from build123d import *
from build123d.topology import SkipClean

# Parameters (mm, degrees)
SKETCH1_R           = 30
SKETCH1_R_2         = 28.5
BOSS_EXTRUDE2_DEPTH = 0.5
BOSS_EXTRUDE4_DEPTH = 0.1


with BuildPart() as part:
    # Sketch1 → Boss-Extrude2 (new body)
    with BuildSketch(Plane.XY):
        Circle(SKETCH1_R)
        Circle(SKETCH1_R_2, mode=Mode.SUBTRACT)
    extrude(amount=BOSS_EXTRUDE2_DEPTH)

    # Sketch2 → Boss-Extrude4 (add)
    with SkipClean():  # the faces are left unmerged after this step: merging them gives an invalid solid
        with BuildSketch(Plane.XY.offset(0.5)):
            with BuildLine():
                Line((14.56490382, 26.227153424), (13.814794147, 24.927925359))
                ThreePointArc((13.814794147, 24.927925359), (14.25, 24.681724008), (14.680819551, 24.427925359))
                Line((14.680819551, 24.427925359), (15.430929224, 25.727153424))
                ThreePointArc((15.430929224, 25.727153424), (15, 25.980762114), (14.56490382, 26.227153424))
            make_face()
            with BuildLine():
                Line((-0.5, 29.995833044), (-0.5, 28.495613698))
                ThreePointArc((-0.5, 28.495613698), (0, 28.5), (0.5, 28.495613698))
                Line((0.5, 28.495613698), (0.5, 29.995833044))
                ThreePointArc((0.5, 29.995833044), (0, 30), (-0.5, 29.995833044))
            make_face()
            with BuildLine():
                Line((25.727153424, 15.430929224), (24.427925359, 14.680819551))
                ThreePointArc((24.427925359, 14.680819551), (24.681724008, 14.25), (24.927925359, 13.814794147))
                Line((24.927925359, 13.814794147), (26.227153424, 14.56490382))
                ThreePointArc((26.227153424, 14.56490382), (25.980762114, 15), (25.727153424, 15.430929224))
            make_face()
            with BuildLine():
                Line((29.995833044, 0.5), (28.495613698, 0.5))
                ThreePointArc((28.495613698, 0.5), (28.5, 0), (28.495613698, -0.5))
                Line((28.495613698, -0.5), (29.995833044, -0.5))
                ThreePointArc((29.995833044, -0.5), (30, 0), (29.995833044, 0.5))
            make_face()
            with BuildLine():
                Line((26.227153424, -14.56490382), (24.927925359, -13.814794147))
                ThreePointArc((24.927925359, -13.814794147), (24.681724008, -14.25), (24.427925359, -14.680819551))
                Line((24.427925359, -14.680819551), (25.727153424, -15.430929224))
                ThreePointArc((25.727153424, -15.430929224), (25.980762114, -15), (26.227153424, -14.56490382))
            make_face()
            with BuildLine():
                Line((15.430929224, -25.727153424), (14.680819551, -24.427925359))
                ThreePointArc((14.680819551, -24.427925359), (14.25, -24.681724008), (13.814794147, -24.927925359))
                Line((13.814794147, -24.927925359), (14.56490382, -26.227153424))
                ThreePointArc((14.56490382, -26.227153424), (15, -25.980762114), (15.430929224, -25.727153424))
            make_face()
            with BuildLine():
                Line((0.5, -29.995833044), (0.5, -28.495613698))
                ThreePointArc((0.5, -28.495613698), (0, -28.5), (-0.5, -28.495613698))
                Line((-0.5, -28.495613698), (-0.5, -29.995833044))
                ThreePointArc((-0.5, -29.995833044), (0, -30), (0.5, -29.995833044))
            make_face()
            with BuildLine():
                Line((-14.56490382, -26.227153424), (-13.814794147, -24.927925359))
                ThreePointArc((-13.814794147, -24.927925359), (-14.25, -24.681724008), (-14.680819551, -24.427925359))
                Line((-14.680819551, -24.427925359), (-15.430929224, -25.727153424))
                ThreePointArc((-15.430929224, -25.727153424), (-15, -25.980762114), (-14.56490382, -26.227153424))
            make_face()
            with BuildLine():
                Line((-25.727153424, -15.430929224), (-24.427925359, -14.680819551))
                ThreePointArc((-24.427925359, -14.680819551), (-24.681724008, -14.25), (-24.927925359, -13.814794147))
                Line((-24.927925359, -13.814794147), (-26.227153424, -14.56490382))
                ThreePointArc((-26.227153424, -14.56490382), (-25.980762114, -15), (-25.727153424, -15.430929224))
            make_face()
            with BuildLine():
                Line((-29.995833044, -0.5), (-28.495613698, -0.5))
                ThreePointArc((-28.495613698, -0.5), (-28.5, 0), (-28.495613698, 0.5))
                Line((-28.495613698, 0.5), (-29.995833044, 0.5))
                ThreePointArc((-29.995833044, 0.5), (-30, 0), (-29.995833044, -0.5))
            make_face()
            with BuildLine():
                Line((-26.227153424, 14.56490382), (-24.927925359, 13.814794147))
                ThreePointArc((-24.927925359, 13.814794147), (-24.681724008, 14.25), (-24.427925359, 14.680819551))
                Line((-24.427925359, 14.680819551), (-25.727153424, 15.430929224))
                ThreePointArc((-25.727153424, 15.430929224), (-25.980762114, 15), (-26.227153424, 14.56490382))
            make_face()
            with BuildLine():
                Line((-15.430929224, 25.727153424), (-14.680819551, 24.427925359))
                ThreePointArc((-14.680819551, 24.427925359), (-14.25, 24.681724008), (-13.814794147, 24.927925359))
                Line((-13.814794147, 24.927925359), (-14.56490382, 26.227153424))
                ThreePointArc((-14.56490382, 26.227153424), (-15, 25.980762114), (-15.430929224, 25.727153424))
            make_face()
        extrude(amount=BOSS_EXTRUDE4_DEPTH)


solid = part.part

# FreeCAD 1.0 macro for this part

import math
import FreeCAD as App
import Part
import Sketcher

V = App.Vector
Q = App.Units.Quantity

doc = App.newDocument("Part")
body = doc.addObject("PartDesign::Body", "Body")

# Sketch on XY plane
sketch1 = doc.addObject("Sketcher::SketchObject", "Sketch")
body.addObject(sketch1)
sketch1.AttachmentSupport = (doc.XY_Plane, [""])
sketch1.MapMode = "FlatFace"
sketch1.addGeometry(Part.Circle(V(0, 0, 0), V(0, 0, 1), 30), False)
sketch1.addGeometry(Part.Circle(V(0, 0, 0), V(0, 0, 1), 28), False)
sketch1.addConstraint(Sketcher.Constraint("Coincident", 0, 3, -1, 1))
sketch1.addConstraint(Sketcher.Constraint("Coincident", 1, 3, -1, 1))
sketch1.addConstraint(Sketcher.Constraint("Diameter", 0, 60.0))
sketch1.addConstraint(Sketcher.Constraint("Diameter", 1, 57.0))
pad1 = doc.addObject("PartDesign::Pad", "Pad")
body.addObject(pad1)
pad1.Profile = sketch1
pad1.Length = 0.5

# Sketch on XY plane
sketch2 = doc.addObject("Sketcher::SketchObject", "Sketch001")
body.addObject(sketch2)
sketch2.AttachmentSupport = (doc.XY_Plane, [""])
sketch2.MapMode = "FlatFace"
sketch2.AttachmentOffset = App.Placement(V(0, 0, 0.5), App.Rotation())
sketch2.addGeometry(Part.LineSegment(V(14.6, 26.2, 0), V(13.8, 24.9, 0)), False)
sketch2.addGeometry(Part.ArcOfCircle(Part.Circle(V(0, 0, 0), V(0, 0, 1), 28.5), math.radians(58.99), math.radians(61.01)), False)
sketch2.addGeometry(Part.LineSegment(V(14.7, 24.4, 0), V(15.4, 25.7, 0)), False)
sketch2.addGeometry(Part.ArcOfCircle(Part.Circle(V(0, 0, 0), V(0, 0, 1), 30), math.radians(59.05), math.radians(60.95)), False)
sketch2.addGeometry(Part.LineSegment(V(-0.5, 30, 0), V(-0.5, 28.5, 0)), False)
sketch2.addGeometry(Part.ArcOfCircle(Part.Circle(V(0, 0, 0), V(0, 0, 1), 28.5), math.radians(88.99), math.radians(91.01)), False)
sketch2.addGeometry(Part.LineSegment(V(0.5, 28.5, 0), V(0.5, 30, 0)), False)
sketch2.addGeometry(Part.ArcOfCircle(Part.Circle(V(0, 0, 0), V(0, 0, 1), 30), math.radians(89.05), math.radians(90.95)), False)
sketch2.addGeometry(Part.LineSegment(V(25.7, 15.4, 0), V(24.4, 14.7, 0)), False)
sketch2.addGeometry(Part.ArcOfCircle(Part.Circle(V(0, 0, 0), V(0, 0, 1), 28.5), math.radians(28.99), math.radians(31.01)), False)
sketch2.addGeometry(Part.LineSegment(V(24.9, 13.8, 0), V(26.2, 14.6, 0)), False)
sketch2.addGeometry(Part.ArcOfCircle(Part.Circle(V(0, 0, 0), V(0, 0, 1), 30), math.radians(29.05), math.radians(30.95)), False)
sketch2.addGeometry(Part.LineSegment(V(30, 0.5, 0), V(28.5, 0.5, 0)), False)
sketch2.addGeometry(Part.ArcOfCircle(Part.Circle(V(0, 0, 0), V(0, 0, 1), 28.5), math.radians(-1.01), math.radians(1.01)), False)
sketch2.addGeometry(Part.LineSegment(V(28.5, -0.5, 0), V(30, -0.5, 0)), False)
sketch2.addGeometry(Part.ArcOfCircle(Part.Circle(V(0, 0, 0), V(0, 0, 1), 30), math.radians(-0.95), math.radians(0.95)), False)
sketch2.addGeometry(Part.LineSegment(V(26.2, -14.6, 0), V(24.9, -13.8, 0)), False)
sketch2.addGeometry(Part.ArcOfCircle(Part.Circle(V(0, 0, 0), V(0, 0, 1), 28.5), math.radians(-31.01), math.radians(-28.99)), False)
sketch2.addGeometry(Part.LineSegment(V(24.4, -14.7, 0), V(25.7, -15.4, 0)), False)
sketch2.addGeometry(Part.ArcOfCircle(Part.Circle(V(0, 0, 0), V(0, 0, 1), 30), math.radians(-30.95), math.radians(-29.05)), False)
sketch2.addGeometry(Part.LineSegment(V(15.4, -25.7, 0), V(14.7, -24.4, 0)), False)
sketch2.addGeometry(Part.ArcOfCircle(Part.Circle(V(0, 0, 0), V(0, 0, 1), 28.5), math.radians(-61.01), math.radians(-58.99)), False)
sketch2.addGeometry(Part.LineSegment(V(13.8, -24.9, 0), V(14.6, -26.2, 0)), False)
sketch2.addGeometry(Part.ArcOfCircle(Part.Circle(V(0, 0, 0), V(0, 0, 1), 30), math.radians(-60.95), math.radians(-59.05)), False)
sketch2.addGeometry(Part.LineSegment(V(0.5, -30, 0), V(0.5, -28.5, 0)), False)
sketch2.addGeometry(Part.ArcOfCircle(Part.Circle(V(0, 0, 0), V(0, 0, 1), 28.5), math.radians(-91.01), math.radians(-88.99)), False)
sketch2.addGeometry(Part.LineSegment(V(-0.5, -28.5, 0), V(-0.5, -30, 0)), False)
sketch2.addGeometry(Part.ArcOfCircle(Part.Circle(V(0, 0, 0), V(0, 0, 1), 30), math.radians(-90.95), math.radians(-89.05)), False)
sketch2.addGeometry(Part.LineSegment(V(-14.6, -26.2, 0), V(-13.8, -24.9, 0)), False)
sketch2.addGeometry(Part.ArcOfCircle(Part.Circle(V(0, 0, 0), V(0, 0, 1), 28.5), math.radians(-121.01), math.radians(-118.99)), False)
sketch2.addGeometry(Part.LineSegment(V(-14.7, -24.4, 0), V(-15.4, -25.7, 0)), False)
sketch2.addGeometry(Part.ArcOfCircle(Part.Circle(V(0, 0, 0), V(0, 0, 1), 30), math.radians(-120.95), math.radians(-119.05)), False)
sketch2.addGeometry(Part.LineSegment(V(-25.7, -15.4, 0), V(-24.4, -14.7, 0)), False)
sketch2.addGeometry(Part.ArcOfCircle(Part.Circle(V(0, 0, 0), V(0, 0, 1), 28.5), math.radians(-151.01), math.radians(-148.99)), False)
sketch2.addGeometry(Part.LineSegment(V(-24.9, -13.8, 0), V(-26.2, -14.6, 0)), False)
sketch2.addGeometry(Part.ArcOfCircle(Part.Circle(V(0, 0, 0), V(0, 0, 1), 30), math.radians(-150.95), math.radians(-149.05)), False)
sketch2.addGeometry(Part.LineSegment(V(-30, -0.5, 0), V(-28.5, -0.5, 0)), False)
sketch2.addGeometry(Part.ArcOfCircle(Part.Circle(V(0, 0, 0), V(0, 0, 1), 28.5), math.radians(178.99), math.radians(181.01)), False)
sketch2.addGeometry(Part.LineSegment(V(-28.5, 0.5, 0), V(-30, 0.5, 0)), False)
sketch2.addGeometry(Part.ArcOfCircle(Part.Circle(V(0, 0, 0), V(0, 0, 1), 30), math.radians(179.05), math.radians(180.95)), False)
sketch2.addGeometry(Part.LineSegment(V(-26.2, 14.6, 0), V(-24.9, 13.8, 0)), False)
sketch2.addGeometry(Part.ArcOfCircle(Part.Circle(V(0, 0, 0), V(0, 0, 1), 28.5), math.radians(148.99), math.radians(151.01)), False)
sketch2.addGeometry(Part.LineSegment(V(-24.4, 14.7, 0), V(-25.7, 15.4, 0)), False)
sketch2.addGeometry(Part.ArcOfCircle(Part.Circle(V(0, 0, 0), V(0, 0, 1), 30), math.radians(149.05), math.radians(150.95)), False)
sketch2.addGeometry(Part.LineSegment(V(-15.4, 25.7, 0), V(-14.7, 24.4, 0)), False)
sketch2.addGeometry(Part.ArcOfCircle(Part.Circle(V(0, 0, 0), V(0, 0, 1), 28.5), math.radians(118.99), math.radians(121.01)), False)
sketch2.addGeometry(Part.LineSegment(V(-13.8, 24.9, 0), V(-14.6, 26.2, 0)), False)
sketch2.addGeometry(Part.ArcOfCircle(Part.Circle(V(0, 0, 0), V(0, 0, 1), 30), math.radians(119.05), math.radians(120.95)), False)
sketch2.addConstraint(Sketcher.Constraint("Coincident", 0, 2, 1, 2))
sketch2.addConstraint(Sketcher.Constraint("Coincident", 1, 1, 2, 1))
sketch2.addConstraint(Sketcher.Constraint("Coincident", 2, 2, 3, 1))
sketch2.addConstraint(Sketcher.Constraint("Coincident", 3, 2, 0, 1))
sketch2.addConstraint(Sketcher.Constraint("Coincident", 4, 2, 5, 2))
sketch2.addConstraint(Sketcher.Constraint("Coincident", 5, 1, 6, 1))
sketch2.addConstraint(Sketcher.Constraint("Coincident", 6, 2, 7, 1))
sketch2.addConstraint(Sketcher.Constraint("Coincident", 7, 2, 4, 1))
sketch2.addConstraint(Sketcher.Constraint("Coincident", 8, 2, 9, 2))
sketch2.addConstraint(Sketcher.Constraint("Coincident", 9, 1, 10, 1))
sketch2.addConstraint(Sketcher.Constraint("Coincident", 10, 2, 11, 1))
sketch2.addConstraint(Sketcher.Constraint("Coincident", 11, 2, 8, 1))
sketch2.addConstraint(Sketcher.Constraint("Coincident", 12, 2, 13, 2))
sketch2.addConstraint(Sketcher.Constraint("Coincident", 13, 1, 14, 1))
sketch2.addConstraint(Sketcher.Constraint("Coincident", 14, 2, 15, 1))
sketch2.addConstraint(Sketcher.Constraint("Coincident", 15, 2, 12, 1))
sketch2.addConstraint(Sketcher.Constraint("Coincident", 16, 2, 17, 2))
sketch2.addConstraint(Sketcher.Constraint("Coincident", 17, 1, 18, 1))
sketch2.addConstraint(Sketcher.Constraint("Coincident", 18, 2, 19, 1))
sketch2.addConstraint(Sketcher.Constraint("Coincident", 19, 2, 16, 1))
sketch2.addConstraint(Sketcher.Constraint("Coincident", 20, 2, 21, 2))
sketch2.addConstraint(Sketcher.Constraint("Coincident", 21, 1, 22, 1))
sketch2.addConstraint(Sketcher.Constraint("Coincident", 22, 2, 23, 1))
sketch2.addConstraint(Sketcher.Constraint("Coincident", 23, 2, 20, 1))
sketch2.addConstraint(Sketcher.Constraint("Coincident", 24, 2, 25, 2))
sketch2.addConstraint(Sketcher.Constraint("Coincident", 25, 1, 26, 1))
sketch2.addConstraint(Sketcher.Constraint("Coincident", 26, 2, 27, 1))
sketch2.addConstraint(Sketcher.Constraint("Coincident", 27, 2, 24, 1))
sketch2.addConstraint(Sketcher.Constraint("Coincident", 28, 2, 29, 2))
sketch2.addConstraint(Sketcher.Constraint("Coincident", 29, 1, 30, 1))
sketch2.addConstraint(Sketcher.Constraint("Coincident", 30, 2, 31, 1))
sketch2.addConstraint(Sketcher.Constraint("Coincident", 31, 2, 28, 1))
sketch2.addConstraint(Sketcher.Constraint("Coincident", 32, 2, 33, 2))
sketch2.addConstraint(Sketcher.Constraint("Coincident", 33, 1, 34, 1))
sketch2.addConstraint(Sketcher.Constraint("Coincident", 34, 2, 35, 1))
sketch2.addConstraint(Sketcher.Constraint("Coincident", 35, 2, 32, 1))
sketch2.addConstraint(Sketcher.Constraint("Coincident", 36, 2, 37, 2))
sketch2.addConstraint(Sketcher.Constraint("Coincident", 37, 1, 38, 1))
sketch2.addConstraint(Sketcher.Constraint("Coincident", 38, 2, 39, 1))
sketch2.addConstraint(Sketcher.Constraint("Coincident", 39, 2, 36, 1))
sketch2.addConstraint(Sketcher.Constraint("Coincident", 40, 2, 41, 2))
sketch2.addConstraint(Sketcher.Constraint("Coincident", 41, 1, 42, 1))
sketch2.addConstraint(Sketcher.Constraint("Coincident", 42, 2, 43, 1))
sketch2.addConstraint(Sketcher.Constraint("Coincident", 43, 2, 40, 1))
sketch2.addConstraint(Sketcher.Constraint("Coincident", 44, 2, 45, 2))
sketch2.addConstraint(Sketcher.Constraint("Coincident", 45, 1, 46, 1))
sketch2.addConstraint(Sketcher.Constraint("Coincident", 46, 2, 47, 1))
sketch2.addConstraint(Sketcher.Constraint("Coincident", 47, 2, 44, 1))
sketch2.addConstraint(Sketcher.Constraint("Vertical", 4))
sketch2.addConstraint(Sketcher.Constraint("Vertical", 6))
sketch2.addConstraint(Sketcher.Constraint("Horizontal", 12))
sketch2.addConstraint(Sketcher.Constraint("Horizontal", 14))
sketch2.addConstraint(Sketcher.Constraint("Vertical", 24))
sketch2.addConstraint(Sketcher.Constraint("Vertical", 26))
sketch2.addConstraint(Sketcher.Constraint("Horizontal", 36))
sketch2.addConstraint(Sketcher.Constraint("Horizontal", 38))
sketch2.addConstraint(Sketcher.Constraint("Coincident", 1, 3, -1, 1))
sketch2.addConstraint(Sketcher.Constraint("Coincident", 3, 3, -1, 1))
sketch2.addConstraint(Sketcher.Constraint("Coincident", 5, 3, -1, 1))
sketch2.addConstraint(Sketcher.Constraint("Coincident", 7, 3, -1, 1))
sketch2.addConstraint(Sketcher.Constraint("Coincident", 9, 3, -1, 1))
sketch2.addConstraint(Sketcher.Constraint("Coincident", 11, 3, -1, 1))
sketch2.addConstraint(Sketcher.Constraint("Coincident", 13, 3, -1, 1))
sketch2.addConstraint(Sketcher.Constraint("Coincident", 15, 3, -1, 1))
sketch2.addConstraint(Sketcher.Constraint("Coincident", 17, 3, -1, 1))
sketch2.addConstraint(Sketcher.Constraint("Coincident", 19, 3, -1, 1))
sketch2.addConstraint(Sketcher.Constraint("Coincident", 21, 3, -1, 1))
sketch2.addConstraint(Sketcher.Constraint("Coincident", 23, 3, -1, 1))
sketch2.addConstraint(Sketcher.Constraint("Coincident", 25, 3, -1, 1))
sketch2.addConstraint(Sketcher.Constraint("Coincident", 27, 3, -1, 1))
sketch2.addConstraint(Sketcher.Constraint("Coincident", 29, 3, -1, 1))
sketch2.addConstraint(Sketcher.Constraint("Coincident", 31, 3, -1, 1))
sketch2.addConstraint(Sketcher.Constraint("Coincident", 33, 3, -1, 1))
sketch2.addConstraint(Sketcher.Constraint("Coincident", 35, 3, -1, 1))
sketch2.addConstraint(Sketcher.Constraint("Coincident", 37, 3, -1, 1))
sketch2.addConstraint(Sketcher.Constraint("Coincident", 39, 3, -1, 1))
sketch2.addConstraint(Sketcher.Constraint("Coincident", 41, 3, -1, 1))
sketch2.addConstraint(Sketcher.Constraint("Coincident", 43, 3, -1, 1))
sketch2.addConstraint(Sketcher.Constraint("Coincident", 45, 3, -1, 1))
sketch2.addConstraint(Sketcher.Constraint("Coincident", 47, 3, -1, 1))
sketch2.addConstraint(Sketcher.Constraint("Equal", 1, 5))
sketch2.addConstraint(Sketcher.Constraint("Equal", 3, 7))
sketch2.addConstraint(Sketcher.Constraint("Equal", 5, 9))
sketch2.addConstraint(Sketcher.Constraint("Equal", 7, 11))
sketch2.addConstraint(Sketcher.Constraint("Equal", 9, 13))
sketch2.addConstraint(Sketcher.Constraint("Equal", 11, 15))
sketch2.addConstraint(Sketcher.Constraint("Equal", 13, 17))
sketch2.addConstraint(Sketcher.Constraint("Equal", 15, 19))
sketch2.addConstraint(Sketcher.Constraint("Equal", 17, 21))
sketch2.addConstraint(Sketcher.Constraint("Equal", 19, 23))
sketch2.addConstraint(Sketcher.Constraint("Equal", 21, 25))
sketch2.addConstraint(Sketcher.Constraint("Equal", 23, 27))
sketch2.addConstraint(Sketcher.Constraint("Equal", 25, 29))
sketch2.addConstraint(Sketcher.Constraint("Equal", 27, 31))
sketch2.addConstraint(Sketcher.Constraint("Equal", 29, 33))
sketch2.addConstraint(Sketcher.Constraint("Equal", 31, 35))
sketch2.addConstraint(Sketcher.Constraint("Equal", 33, 37))
sketch2.addConstraint(Sketcher.Constraint("Equal", 35, 39))
sketch2.addConstraint(Sketcher.Constraint("Equal", 37, 41))
sketch2.addConstraint(Sketcher.Constraint("Equal", 39, 43))
sketch2.addConstraint(Sketcher.Constraint("Equal", 41, 45))
sketch2.addConstraint(Sketcher.Constraint("Equal", 43, 47))
sketch2.addConstraint(Sketcher.Constraint("Parallel", 0, 2))
sketch2.addConstraint(Sketcher.Constraint("Parallel", 8, 10))
sketch2.addConstraint(Sketcher.Constraint("Perpendicular", 2, 16))
sketch2.addConstraint(Sketcher.Constraint("Parallel", 16, 18))
sketch2.addConstraint(Sketcher.Constraint("Perpendicular", 10, 20))
sketch2.addConstraint(Sketcher.Constraint("Parallel", 20, 22))
sketch2.addConstraint(Sketcher.Constraint("Perpendicular", 18, 28))
sketch2.addConstraint(Sketcher.Constraint("Parallel", 28, 30))
sketch2.addConstraint(Sketcher.Constraint("Perpendicular", 22, 32))
sketch2.addConstraint(Sketcher.Constraint("Parallel", 32, 34))
sketch2.addConstraint(Sketcher.Constraint("Perpendicular", 30, 40))
sketch2.addConstraint(Sketcher.Constraint("Parallel", 40, 42))
sketch2.addConstraint(Sketcher.Constraint("Perpendicular", 34, 44))
sketch2.addConstraint(Sketcher.Constraint("Parallel", 44, 46))
sketch2.addConstraint(Sketcher.Constraint("Horizontal", 4, 2, 5, 1))
sketch2.addConstraint(Sketcher.Constraint("Horizontal", 24, 2, 25, 1))
sketch2.addConstraint(Sketcher.Constraint("Horizontal", 21, 1, 28, 2))
sketch2.addConstraint(Sketcher.Constraint("Horizontal", 20, 2, 29, 1))
sketch2.addConstraint(Sketcher.Constraint("Horizontal", 23, 2, 30, 2))
sketch2.addConstraint(Sketcher.Constraint("Horizontal", 17, 1, 32, 2))
sketch2.addConstraint(Sketcher.Constraint("Horizontal", 16, 2, 33, 1))
sketch2.addConstraint(Sketcher.Constraint("Horizontal", 14, 2, 36, 2))
sketch2.addConstraint(Sketcher.Constraint("Horizontal", 15, 2, 37, 1))
sketch2.addConstraint(Sketcher.Constraint("Horizontal", 9, 1, 40, 2))
sketch2.addConstraint(Sketcher.Constraint("Horizontal", 8, 2, 41, 1))
sketch2.addConstraint(Sketcher.Constraint("Horizontal", 1, 1, 44, 2))
sketch2.addConstraint(Sketcher.Constraint("Horizontal", 0, 2, 45, 1))
sketch2.addConstraint(Sketcher.Constraint("Vertical", 12, 2, 13, 1))
sketch2.addConstraint(Sketcher.Constraint("Vertical", 9, 1, 16, 2))
sketch2.addConstraint(Sketcher.Constraint("Vertical", 8, 2, 17, 1))
sketch2.addConstraint(Sketcher.Constraint("Vertical", 1, 1, 20, 2))
sketch2.addConstraint(Sketcher.Constraint("Vertical", 0, 2, 21, 1))
sketch2.addConstraint(Sketcher.Constraint("Vertical", 6, 2, 24, 2))
sketch2.addConstraint(Sketcher.Constraint("Equal", 0, 2))
sketch2.addConstraint(Sketcher.Constraint("Radius", 3, 29.999999))
sketch2.addConstraint(Sketcher.Constraint("Angle", 0, Q("-120 deg")))
sketch2.addConstraint(Sketcher.Constraint("DistanceX", 4, 2, -1, 1, 0.5))
sketch2.addConstraint(Sketcher.Constraint("DistanceY", -1, 1, 12, 2, 0.5))
sketch2.addConstraint(Sketcher.Constraint("Radius", 1, 28.500003))
sketch2.addConstraint(Sketcher.Constraint("DistanceX", -1, 1, 1, 1, 14.68082))
sketch2.addConstraint(Sketcher.Constraint("DistanceY", -1, 1, 8, 2, 14.68082))
sketch2.addConstraint(Sketcher.Constraint("DistanceX", -1, 1, 9, 1, 24.927925))
pad2 = doc.addObject("PartDesign::Pad", "Pad001")
body.addObject(pad2)
pad2.Profile = sketch2
pad2.Length = 0.1

doc.recompute()
